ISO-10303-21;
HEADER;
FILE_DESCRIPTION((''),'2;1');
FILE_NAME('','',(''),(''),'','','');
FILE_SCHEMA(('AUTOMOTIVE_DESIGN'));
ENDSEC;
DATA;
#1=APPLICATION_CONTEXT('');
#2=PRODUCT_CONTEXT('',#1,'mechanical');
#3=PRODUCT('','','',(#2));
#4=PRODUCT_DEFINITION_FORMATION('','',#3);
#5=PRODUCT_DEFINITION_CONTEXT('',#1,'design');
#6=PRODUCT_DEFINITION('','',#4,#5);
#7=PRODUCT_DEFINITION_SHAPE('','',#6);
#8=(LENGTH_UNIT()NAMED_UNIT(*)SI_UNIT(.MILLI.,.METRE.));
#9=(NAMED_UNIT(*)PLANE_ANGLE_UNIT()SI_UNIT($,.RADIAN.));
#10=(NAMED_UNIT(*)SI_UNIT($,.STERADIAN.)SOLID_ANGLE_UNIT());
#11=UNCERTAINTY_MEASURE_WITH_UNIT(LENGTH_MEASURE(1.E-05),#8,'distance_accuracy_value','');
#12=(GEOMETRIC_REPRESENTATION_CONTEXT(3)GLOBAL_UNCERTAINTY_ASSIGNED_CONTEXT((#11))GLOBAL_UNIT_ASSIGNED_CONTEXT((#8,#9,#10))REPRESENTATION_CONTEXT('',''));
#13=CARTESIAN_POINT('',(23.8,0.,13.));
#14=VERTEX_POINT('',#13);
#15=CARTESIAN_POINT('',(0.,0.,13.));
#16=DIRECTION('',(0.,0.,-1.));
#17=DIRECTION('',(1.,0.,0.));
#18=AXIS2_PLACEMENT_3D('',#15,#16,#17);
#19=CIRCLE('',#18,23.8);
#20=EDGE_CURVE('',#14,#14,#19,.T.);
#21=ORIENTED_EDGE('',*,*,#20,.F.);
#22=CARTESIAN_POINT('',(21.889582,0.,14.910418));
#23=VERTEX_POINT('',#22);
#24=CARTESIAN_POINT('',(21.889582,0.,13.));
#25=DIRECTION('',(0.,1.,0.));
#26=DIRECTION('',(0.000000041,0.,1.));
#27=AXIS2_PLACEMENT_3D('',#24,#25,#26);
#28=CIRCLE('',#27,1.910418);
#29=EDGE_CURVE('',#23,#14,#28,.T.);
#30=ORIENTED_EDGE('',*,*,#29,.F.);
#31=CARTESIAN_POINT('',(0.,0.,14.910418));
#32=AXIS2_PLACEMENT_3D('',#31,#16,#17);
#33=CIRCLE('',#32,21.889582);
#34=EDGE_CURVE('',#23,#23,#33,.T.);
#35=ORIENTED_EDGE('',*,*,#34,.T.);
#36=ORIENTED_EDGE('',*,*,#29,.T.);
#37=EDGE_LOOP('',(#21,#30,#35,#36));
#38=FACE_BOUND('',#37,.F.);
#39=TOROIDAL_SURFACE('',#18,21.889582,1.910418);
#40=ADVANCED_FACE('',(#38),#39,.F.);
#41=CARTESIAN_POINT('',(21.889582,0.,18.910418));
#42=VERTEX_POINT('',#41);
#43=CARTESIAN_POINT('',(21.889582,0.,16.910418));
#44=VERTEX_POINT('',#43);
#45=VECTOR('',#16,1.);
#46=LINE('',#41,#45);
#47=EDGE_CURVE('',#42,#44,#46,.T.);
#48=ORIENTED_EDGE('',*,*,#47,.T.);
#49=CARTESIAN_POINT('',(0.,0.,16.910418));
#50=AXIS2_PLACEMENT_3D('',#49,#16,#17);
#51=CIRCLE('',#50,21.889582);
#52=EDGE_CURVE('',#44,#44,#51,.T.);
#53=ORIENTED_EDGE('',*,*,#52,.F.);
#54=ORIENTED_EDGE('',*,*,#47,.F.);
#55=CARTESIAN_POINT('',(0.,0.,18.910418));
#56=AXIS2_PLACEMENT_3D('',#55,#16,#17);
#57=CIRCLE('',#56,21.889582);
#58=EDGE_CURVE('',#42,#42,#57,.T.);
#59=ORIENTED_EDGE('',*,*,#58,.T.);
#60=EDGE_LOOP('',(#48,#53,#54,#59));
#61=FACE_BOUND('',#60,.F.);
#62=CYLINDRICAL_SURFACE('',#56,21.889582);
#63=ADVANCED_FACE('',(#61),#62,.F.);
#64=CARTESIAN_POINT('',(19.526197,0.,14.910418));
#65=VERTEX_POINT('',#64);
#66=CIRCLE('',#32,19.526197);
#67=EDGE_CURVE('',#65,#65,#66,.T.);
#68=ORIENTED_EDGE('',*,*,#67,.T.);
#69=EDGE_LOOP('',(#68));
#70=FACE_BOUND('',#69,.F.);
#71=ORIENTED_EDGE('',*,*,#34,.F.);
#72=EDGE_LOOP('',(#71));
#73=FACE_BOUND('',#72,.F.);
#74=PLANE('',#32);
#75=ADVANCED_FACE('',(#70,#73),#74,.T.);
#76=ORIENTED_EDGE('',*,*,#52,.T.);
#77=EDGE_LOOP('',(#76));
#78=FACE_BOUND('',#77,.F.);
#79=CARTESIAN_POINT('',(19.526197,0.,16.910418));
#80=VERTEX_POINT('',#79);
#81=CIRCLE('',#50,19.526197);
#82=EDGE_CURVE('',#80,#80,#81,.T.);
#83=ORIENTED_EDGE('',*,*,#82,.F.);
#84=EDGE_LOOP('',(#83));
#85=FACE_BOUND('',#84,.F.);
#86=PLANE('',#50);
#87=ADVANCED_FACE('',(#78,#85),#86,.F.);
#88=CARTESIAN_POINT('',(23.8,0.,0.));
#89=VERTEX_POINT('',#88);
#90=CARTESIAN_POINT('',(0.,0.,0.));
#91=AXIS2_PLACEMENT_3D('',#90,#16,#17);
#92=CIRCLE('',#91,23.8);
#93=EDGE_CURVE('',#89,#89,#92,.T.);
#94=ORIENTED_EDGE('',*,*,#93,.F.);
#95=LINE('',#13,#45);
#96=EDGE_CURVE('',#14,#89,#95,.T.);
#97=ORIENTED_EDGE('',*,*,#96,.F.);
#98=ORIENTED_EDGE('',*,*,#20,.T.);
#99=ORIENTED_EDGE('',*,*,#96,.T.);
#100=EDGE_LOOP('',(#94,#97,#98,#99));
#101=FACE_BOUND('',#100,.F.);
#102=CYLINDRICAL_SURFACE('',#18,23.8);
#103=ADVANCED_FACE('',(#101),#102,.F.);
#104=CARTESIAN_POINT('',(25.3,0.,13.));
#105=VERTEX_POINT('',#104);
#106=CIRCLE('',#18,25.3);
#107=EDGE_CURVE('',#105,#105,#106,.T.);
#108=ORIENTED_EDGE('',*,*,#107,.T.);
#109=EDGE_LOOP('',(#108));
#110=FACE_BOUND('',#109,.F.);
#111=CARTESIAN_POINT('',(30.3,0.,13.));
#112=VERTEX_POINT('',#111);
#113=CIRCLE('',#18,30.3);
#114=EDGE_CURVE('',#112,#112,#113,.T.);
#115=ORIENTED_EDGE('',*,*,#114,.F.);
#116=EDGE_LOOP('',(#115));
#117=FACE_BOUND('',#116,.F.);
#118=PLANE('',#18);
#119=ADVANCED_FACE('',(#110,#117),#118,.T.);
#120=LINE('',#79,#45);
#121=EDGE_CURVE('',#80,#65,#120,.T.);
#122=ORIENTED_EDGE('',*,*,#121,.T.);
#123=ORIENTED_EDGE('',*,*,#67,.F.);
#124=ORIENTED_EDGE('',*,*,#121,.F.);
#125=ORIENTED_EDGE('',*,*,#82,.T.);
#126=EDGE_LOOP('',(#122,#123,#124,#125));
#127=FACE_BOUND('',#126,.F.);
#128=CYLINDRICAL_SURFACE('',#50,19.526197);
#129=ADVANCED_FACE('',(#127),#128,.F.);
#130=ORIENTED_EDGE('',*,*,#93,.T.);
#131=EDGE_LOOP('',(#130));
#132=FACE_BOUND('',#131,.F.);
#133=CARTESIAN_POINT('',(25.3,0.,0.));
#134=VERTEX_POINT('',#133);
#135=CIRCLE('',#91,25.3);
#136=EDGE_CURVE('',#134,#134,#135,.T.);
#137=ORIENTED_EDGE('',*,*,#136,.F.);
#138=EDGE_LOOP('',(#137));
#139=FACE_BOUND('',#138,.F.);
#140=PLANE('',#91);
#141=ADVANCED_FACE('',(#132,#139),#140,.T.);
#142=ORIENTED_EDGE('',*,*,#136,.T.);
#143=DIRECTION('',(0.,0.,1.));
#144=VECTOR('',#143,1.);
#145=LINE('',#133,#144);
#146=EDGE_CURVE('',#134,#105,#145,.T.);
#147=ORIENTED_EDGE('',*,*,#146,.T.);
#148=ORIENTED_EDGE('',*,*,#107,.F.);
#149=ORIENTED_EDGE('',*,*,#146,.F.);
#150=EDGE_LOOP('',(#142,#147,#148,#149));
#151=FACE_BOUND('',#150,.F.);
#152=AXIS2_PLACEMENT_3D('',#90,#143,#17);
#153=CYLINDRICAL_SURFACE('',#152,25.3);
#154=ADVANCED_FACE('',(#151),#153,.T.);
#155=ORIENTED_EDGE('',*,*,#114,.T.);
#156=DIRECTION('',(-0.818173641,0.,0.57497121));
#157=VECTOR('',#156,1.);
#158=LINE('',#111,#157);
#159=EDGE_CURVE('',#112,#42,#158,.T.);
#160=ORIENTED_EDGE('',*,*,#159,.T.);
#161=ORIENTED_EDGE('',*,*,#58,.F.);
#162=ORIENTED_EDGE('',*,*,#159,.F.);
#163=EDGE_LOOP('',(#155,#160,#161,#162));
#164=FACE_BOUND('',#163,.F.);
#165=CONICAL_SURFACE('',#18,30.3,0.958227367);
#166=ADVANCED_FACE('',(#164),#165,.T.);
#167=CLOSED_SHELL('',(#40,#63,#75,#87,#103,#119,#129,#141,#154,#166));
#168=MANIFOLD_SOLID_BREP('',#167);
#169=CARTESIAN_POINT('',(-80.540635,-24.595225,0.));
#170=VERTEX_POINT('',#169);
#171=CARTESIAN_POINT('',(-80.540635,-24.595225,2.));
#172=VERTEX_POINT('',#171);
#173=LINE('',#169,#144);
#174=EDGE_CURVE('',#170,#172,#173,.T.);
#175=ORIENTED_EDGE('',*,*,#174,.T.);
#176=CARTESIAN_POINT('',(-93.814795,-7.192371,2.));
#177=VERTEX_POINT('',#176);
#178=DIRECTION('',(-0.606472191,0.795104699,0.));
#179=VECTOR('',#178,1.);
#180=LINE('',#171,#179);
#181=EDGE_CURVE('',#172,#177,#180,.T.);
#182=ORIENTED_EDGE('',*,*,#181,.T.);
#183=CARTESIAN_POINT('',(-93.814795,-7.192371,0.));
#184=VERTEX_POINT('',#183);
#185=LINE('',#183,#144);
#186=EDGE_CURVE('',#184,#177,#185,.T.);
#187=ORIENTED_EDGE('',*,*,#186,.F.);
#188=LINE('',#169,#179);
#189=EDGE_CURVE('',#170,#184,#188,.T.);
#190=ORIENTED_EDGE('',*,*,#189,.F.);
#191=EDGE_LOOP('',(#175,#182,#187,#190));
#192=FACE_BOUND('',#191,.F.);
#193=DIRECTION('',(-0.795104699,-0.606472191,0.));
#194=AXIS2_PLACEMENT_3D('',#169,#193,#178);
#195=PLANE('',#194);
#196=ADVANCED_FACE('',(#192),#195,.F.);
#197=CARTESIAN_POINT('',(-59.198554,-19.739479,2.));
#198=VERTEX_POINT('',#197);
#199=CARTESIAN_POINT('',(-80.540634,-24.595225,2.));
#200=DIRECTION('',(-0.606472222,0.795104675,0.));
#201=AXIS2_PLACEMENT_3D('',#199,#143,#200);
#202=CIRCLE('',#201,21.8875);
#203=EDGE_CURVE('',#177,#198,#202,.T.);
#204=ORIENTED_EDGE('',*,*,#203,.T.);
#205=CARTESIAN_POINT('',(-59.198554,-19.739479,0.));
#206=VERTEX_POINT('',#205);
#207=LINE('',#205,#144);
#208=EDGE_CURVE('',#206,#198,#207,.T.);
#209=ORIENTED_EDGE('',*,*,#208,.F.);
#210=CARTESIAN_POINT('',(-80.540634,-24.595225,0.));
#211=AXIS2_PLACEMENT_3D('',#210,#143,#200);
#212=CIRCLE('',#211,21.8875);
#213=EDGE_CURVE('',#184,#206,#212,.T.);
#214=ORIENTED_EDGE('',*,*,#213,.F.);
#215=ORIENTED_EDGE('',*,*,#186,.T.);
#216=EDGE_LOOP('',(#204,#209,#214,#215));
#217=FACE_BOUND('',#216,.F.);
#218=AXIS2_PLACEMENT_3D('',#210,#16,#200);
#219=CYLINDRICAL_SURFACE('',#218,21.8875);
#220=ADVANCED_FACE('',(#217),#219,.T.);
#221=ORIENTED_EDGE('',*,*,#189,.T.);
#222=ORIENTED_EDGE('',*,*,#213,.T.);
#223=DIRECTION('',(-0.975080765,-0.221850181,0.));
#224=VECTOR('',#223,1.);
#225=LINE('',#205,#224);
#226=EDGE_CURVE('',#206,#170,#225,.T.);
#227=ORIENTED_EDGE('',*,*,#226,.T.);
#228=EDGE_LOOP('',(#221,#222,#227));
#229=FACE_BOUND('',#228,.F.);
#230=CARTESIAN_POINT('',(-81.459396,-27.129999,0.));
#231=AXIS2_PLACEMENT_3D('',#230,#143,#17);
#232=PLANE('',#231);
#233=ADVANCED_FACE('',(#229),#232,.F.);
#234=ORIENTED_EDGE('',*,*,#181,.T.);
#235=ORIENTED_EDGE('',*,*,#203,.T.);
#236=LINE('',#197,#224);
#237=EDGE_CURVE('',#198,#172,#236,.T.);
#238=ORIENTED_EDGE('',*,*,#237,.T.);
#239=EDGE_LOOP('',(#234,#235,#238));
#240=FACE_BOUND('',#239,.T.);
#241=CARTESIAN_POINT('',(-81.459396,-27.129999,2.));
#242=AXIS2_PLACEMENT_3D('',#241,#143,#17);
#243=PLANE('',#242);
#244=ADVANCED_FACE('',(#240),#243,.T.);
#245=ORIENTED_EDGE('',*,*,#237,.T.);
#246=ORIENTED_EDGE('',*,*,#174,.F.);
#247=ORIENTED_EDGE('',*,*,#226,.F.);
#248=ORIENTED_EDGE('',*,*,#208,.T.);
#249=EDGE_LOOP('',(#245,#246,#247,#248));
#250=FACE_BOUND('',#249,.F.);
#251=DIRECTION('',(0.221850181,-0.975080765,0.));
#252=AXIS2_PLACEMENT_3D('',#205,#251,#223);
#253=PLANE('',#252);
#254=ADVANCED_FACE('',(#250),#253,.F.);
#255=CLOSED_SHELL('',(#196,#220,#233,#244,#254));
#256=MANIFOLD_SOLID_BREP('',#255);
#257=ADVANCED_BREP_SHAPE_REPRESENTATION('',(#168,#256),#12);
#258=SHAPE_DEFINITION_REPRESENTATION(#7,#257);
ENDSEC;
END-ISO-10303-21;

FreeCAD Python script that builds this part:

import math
import FreeCAD as App
import Part
import Sketcher

doc = App.newDocument("Part")
body = doc.addObject("PartDesign::Body", "Body")

# Sketch on XZ plane
sketch1 = body.newObject("Sketcher::SketchObject", "Sketch")
sketch1.AttachmentSupport = (doc.getObject("XZ_Plane"), [""])
sketch1.MapMode = "FlatFace"
sketch1.addGeometry(Part.LineSegment(App.Vector(23.8, 13, 0), App.Vector(23.8, 0, 0)), False)
sketch1.addGeometry(Part.LineSegment(App.Vector(23.8, 0, 0), App.Vector(25.3, 0, 0)), False)
sketch1.addGeometry(Part.LineSegment(App.Vector(25.3, 0, 0), App.Vector(25.3, 13, 0)), False)
sketch1.addGeometry(Part.LineSegment(App.Vector(25.3, 13, 0), App.Vector(30.3, 13, 0)), False)
sketch1.addGeometry(Part.LineSegment(App.Vector(30.3, 13, 0), App.Vector(21.9, 18.9, 0)), False)
sketch1.addGeometry(Part.LineSegment(App.Vector(21.9, 18.9, 0), App.Vector(21.9, 16.9, 0)), False)
sketch1.addGeometry(Part.LineSegment(App.Vector(21.9, 16.9, 0), App.Vector(19.5, 16.9, 0)), False)
sketch1.addGeometry(Part.LineSegment(App.Vector(19.5, 16.9, 0), App.Vector(19.5, 14.9, 0)), False)
sketch1.addGeometry(Part.LineSegment(App.Vector(19.5, 14.9, 0), App.Vector(21.9, 14.9, 0)), False)
sketch1.addGeometry(Part.ArcOfCircle(Part.Circle(App.Vector(21.9, 13, 0), App.Vector(0, 0, 1), 1.9), math.radians(0), math.radians(90)), False)
sketch1.addConstraint(Sketcher.Constraint("Coincident", 0, 2, 1, 1))
sketch1.addConstraint(Sketcher.Constraint("Coincident", 1, 2, 2, 1))
sketch1.addConstraint(Sketcher.Constraint("Coincident", 2, 2, 3, 1))
sketch1.addConstraint(Sketcher.Constraint("Coincident", 3, 2, 4, 1))
sketch1.addConstraint(Sketcher.Constraint("Coincident", 4, 2, 5, 1))
sketch1.addConstraint(Sketcher.Constraint("Coincident", 5, 2, 6, 1))
sketch1.addConstraint(Sketcher.Constraint("Coincident", 6, 2, 7, 1))
sketch1.addConstraint(Sketcher.Constraint("Coincident", 7, 2, 8, 1))
sketch1.addConstraint(Sketcher.Constraint("Tangent", 8, 2, 9, 2))
sketch1.addConstraint(Sketcher.Constraint("Tangent", 9, 1, 0, 1))
sketch1.addConstraint(Sketcher.Constraint("Vertical", 0))
sketch1.addConstraint(Sketcher.Constraint("Horizontal", 1))
sketch1.addConstraint(Sketcher.Constraint("Vertical", 2))
sketch1.addConstraint(Sketcher.Constraint("Horizontal", 3))
sketch1.addConstraint(Sketcher.Constraint("Vertical", 5))
sketch1.addConstraint(Sketcher.Constraint("Horizontal", 6))
sketch1.addConstraint(Sketcher.Constraint("Vertical", 7))
sketch1.addConstraint(Sketcher.Constraint("Horizontal", 8))
sketch1.addConstraint(Sketcher.Constraint("PointOnObject", 0, 2, -1))
sketch1.addConstraint(Sketcher.Constraint("Horizontal", 9, 3, 2, 2))
sketch1.addConstraint(Sketcher.Constraint("Vertical", 9, 3, 4, 2))
sketch1.addConstraint(Sketcher.Constraint("Equal", 5, 7))
sketch1.addConstraint(Sketcher.Constraint("DistanceX", 3, 1, 3, 2, 5.0))
sketch1.addConstraint(Sketcher.Constraint("DistanceY", 0, 2, 0, 1, 13.0))
sketch1.addConstraint(Sketcher.Constraint("DistanceY", 5, 2, 5, 1, 2.0))
sketch1.addConstraint(Sketcher.Constraint("DistanceX", 1, 1, 1, 2, 1.5))
sketch1.addConstraint(Sketcher.Constraint("DistanceX", -1, 1, 0, 2, 23.8))
sketch1.addConstraint(Sketcher.Constraint("Radius", 9, 1.910418))
sketch1.addConstraint(Sketcher.Constraint("DistanceX", 6, 2, 6, 1, 2.363385))
revolution = body.newObject("PartDesign::Revolution", "Revolution")
revolution.Profile = sketch1
revolution.ReferenceAxis = (sketch1, ["V_Axis"])
revolution.Angle = 360
body2 = doc.addObject("PartDesign::Body", "Body001")

# Sketch on XY plane
sketch2 = body2.newObject("Sketcher::SketchObject", "Sketch001")
sketch2.AttachmentSupport = (doc.getObject("XY_Plane001"), [""])
sketch2.MapMode = "FlatFace"
sketch2.addGeometry(Part.LineSegment(App.Vector(-81, -25, 0), App.Vector(-94, -7, 0)), False)
sketch2.addGeometry(Part.ArcOfCircle(Part.Circle(App.Vector(-81, -25, 0), App.Vector(0, 0, 1), 22), math.radians(127), math.radians(373)), False)
sketch2.addGeometry(Part.LineSegment(App.Vector(-59, -20, 0), App.Vector(-81, -25, 0)), False)
sketch2.addConstraint(Sketcher.Constraint("Coincident", 0, 2, 1, 1))
sketch2.addConstraint(Sketcher.Constraint("Coincident", 1, 2, 2, 1))
sketch2.addConstraint(Sketcher.Constraint("Coincident", 2, 2, 0, 1))
sketch2.addConstraint(Sketcher.Constraint("Coincident", 2, 2, 1, 3))
sketch2.addConstraint(Sketcher.Constraint("Radius", 1, 21.8875))
sketch2.addConstraint(Sketcher.Constraint("DistanceY", 0, 2, -1, 1, 7.192371))
sketch2.addConstraint(Sketcher.Constraint("DistanceY", 1, 2, -1, 1, 19.739479))
sketch2.addConstraint(Sketcher.Constraint("DistanceX", 0, 2, 1, 3, 13.274161))
sketch2.addConstraint(Sketcher.Constraint("DistanceX", 1, 3, -1, 1, 80.540634))
pad1 = body2.newObject("PartDesign::Pad", "Pad")
pad1.Profile = sketch2
pad1.Length = 2

doc.recompute()
